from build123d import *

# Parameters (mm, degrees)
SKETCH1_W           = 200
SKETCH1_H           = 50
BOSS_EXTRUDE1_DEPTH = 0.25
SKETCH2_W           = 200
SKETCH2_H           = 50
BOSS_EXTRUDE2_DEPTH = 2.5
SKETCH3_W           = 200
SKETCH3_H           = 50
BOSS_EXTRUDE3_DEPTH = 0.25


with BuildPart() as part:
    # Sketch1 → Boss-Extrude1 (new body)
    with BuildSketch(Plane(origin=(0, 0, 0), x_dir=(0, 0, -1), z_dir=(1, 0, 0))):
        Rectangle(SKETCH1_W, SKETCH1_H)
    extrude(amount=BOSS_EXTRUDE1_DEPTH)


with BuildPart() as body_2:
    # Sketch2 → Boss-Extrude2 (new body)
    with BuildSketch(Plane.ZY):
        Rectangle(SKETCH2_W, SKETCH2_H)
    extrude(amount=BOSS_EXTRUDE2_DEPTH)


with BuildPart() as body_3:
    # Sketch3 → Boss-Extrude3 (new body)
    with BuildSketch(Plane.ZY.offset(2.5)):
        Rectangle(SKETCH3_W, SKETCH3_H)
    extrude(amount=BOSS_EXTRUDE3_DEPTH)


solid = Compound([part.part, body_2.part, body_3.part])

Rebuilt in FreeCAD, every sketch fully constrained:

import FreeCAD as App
import Part
import Sketcher
from FreeCAD import Vector
Q = App.Units.Quantity


def add_polygon(sketch, points):
    """Adds a closed chain of lines whose ends are joined by coincident constraints."""
    first, n = sketch.GeometryCount, len(points)
    for a, b in zip(points, points[1:] + points[:1]):
        sketch.addGeometry(Part.LineSegment(App.Vector(*a, 0), App.Vector(*b, 0)), False)
    for i in range(n):
        sketch.addConstraint(Sketcher.Constraint("Coincident", first + i, 2, first + (i + 1) % n, 1))

doc = App.newDocument("Part")
params = doc.addObject("Spreadsheet::Sheet", "Params")
for row, (alias, value) in enumerate([
    ("sketch1_width", "50 mm"),
    ("sketch1_height", "200 mm"),
    ("pad1_length", "0.25 mm"),
    ("sketch2_width", "50 mm"),
    ("sketch2_height", "200 mm"),
    ("pad2_length", "2.5 mm"),
    ("sketch3_width", "50 mm"),
    ("sketch3_height", "200 mm"),
    ("pad3_length", "0.25 mm"),
], start=1):
    params.set(f"A{row}", alias)
    params.set(f"B{row}", "=" + value)
    params.setAlias(f"B{row}", alias)

body = doc.addObject("PartDesign::Body", "Body")

# Sketch on YZ plane
sketch1 = body.newObject("Sketcher::SketchObject", "Sketch")
sketch1.AttachmentSupport = (doc.getObject("YZ_Plane"), [""])
sketch1.MapMode = "FlatFace"
add_polygon(sketch1, [(25, 100), (-25, 100), (-25, -100), (25, -100)])  # lines 0-3
sketch1.addConstraint([
    Sketcher.Constraint("Horizontal", 0),
    Sketcher.Constraint("Vertical", 1),
    Sketcher.Constraint("Horizontal", 2),
    Sketcher.Constraint("Vertical", 3),
    Sketcher.Constraint("Symmetric", 0, 2, 2, 2, -1, 1),
    Sketcher.Constraint("DistanceX", 0, 2, 0, 1, Q("50 mm")),
    Sketcher.Constraint("DistanceY", 1, 2, 1, 1, Q("200 mm")),
])
sketch1.setExpression("Constraints[9]", "Params.sketch1_width")
sketch1.setExpression("Constraints[10]", "Params.sketch1_height")
pad1 = body.newObject("PartDesign::Pad", "Pad")
pad1.Profile = sketch1
pad1.setExpression("Length", "Params.pad1_length")
body2 = doc.addObject("PartDesign::Body", "Body001")

# Sketch on YZ plane
sketch2 = body2.newObject("Sketcher::SketchObject", "Sketch001")
sketch2.AttachmentSupport = (doc.getObject("YZ_Plane001"), [""])
sketch2.MapMode = "FlatFace"
add_polygon(sketch2, [(25, -100), (-25, -100), (-25, 100), (25, 100)])  # lines 0-3
sketch2.addConstraint([
    Sketcher.Constraint("Horizontal", 0),
    Sketcher.Constraint("Vertical", 1),
    Sketcher.Constraint("Horizontal", 2),
    Sketcher.Constraint("Vertical", 3),
    Sketcher.Constraint("Symmetric", 0, 2, 2, 2, -1, 1),
    Sketcher.Constraint("DistanceX", 0, 2, 0, 1, Q("50 mm")),
    Sketcher.Constraint("DistanceY", 1, 1, 1, 2, Q("200 mm")),
])
sketch2.setExpression("Constraints[9]", "Params.sketch2_width")
sketch2.setExpression("Constraints[10]", "Params.sketch2_height")
pad2 = body2.newObject("PartDesign::Pad", "Pad001")
pad2.Profile = sketch2
pad2.setExpression("Length", "Params.pad2_length")
pad2.Reversed = True
body3 = doc.addObject("PartDesign::Body", "Body002")

# Sketch on YZ plane
sketch3 = body3.newObject("Sketcher::SketchObject", "Sketch002")
sketch3.AttachmentSupport = (doc.getObject("YZ_Plane002"), [""])
sketch3.MapMode = "FlatFace"
sketch3.AttachmentOffset = App.Placement(Vector(0, 0, -2.5), App.Rotation())
add_polygon(sketch3, [(25, -100), (-25, -100), (-25, 100), (25, 100)])  # lines 0-3
sketch3.addConstraint([
    Sketcher.Constraint("Horizontal", 0),
    Sketcher.Constraint("Vertical", 1),
    Sketcher.Constraint("Horizontal", 2),
    Sketcher.Constraint("Vertical", 3),
    Sketcher.Constraint("Symmetric", 0, 2, 2, 2, -1, 1),
    Sketcher.Constraint("DistanceX", 0, 2, 0, 1, Q("50 mm")),
    Sketcher.Constraint("DistanceY", 1, 1, 1, 2, Q("200 mm")),
])
sketch3.setExpression("Constraints[9]", "Params.sketch3_width")
sketch3.setExpression("Constraints[10]", "Params.sketch3_height")
pad3 = body3.newObject("PartDesign::Pad", "Pad002")
pad3.Profile = sketch3
pad3.setExpression("Length", "Params.pad3_length")
pad3.Reversed = True

doc.recompute()
